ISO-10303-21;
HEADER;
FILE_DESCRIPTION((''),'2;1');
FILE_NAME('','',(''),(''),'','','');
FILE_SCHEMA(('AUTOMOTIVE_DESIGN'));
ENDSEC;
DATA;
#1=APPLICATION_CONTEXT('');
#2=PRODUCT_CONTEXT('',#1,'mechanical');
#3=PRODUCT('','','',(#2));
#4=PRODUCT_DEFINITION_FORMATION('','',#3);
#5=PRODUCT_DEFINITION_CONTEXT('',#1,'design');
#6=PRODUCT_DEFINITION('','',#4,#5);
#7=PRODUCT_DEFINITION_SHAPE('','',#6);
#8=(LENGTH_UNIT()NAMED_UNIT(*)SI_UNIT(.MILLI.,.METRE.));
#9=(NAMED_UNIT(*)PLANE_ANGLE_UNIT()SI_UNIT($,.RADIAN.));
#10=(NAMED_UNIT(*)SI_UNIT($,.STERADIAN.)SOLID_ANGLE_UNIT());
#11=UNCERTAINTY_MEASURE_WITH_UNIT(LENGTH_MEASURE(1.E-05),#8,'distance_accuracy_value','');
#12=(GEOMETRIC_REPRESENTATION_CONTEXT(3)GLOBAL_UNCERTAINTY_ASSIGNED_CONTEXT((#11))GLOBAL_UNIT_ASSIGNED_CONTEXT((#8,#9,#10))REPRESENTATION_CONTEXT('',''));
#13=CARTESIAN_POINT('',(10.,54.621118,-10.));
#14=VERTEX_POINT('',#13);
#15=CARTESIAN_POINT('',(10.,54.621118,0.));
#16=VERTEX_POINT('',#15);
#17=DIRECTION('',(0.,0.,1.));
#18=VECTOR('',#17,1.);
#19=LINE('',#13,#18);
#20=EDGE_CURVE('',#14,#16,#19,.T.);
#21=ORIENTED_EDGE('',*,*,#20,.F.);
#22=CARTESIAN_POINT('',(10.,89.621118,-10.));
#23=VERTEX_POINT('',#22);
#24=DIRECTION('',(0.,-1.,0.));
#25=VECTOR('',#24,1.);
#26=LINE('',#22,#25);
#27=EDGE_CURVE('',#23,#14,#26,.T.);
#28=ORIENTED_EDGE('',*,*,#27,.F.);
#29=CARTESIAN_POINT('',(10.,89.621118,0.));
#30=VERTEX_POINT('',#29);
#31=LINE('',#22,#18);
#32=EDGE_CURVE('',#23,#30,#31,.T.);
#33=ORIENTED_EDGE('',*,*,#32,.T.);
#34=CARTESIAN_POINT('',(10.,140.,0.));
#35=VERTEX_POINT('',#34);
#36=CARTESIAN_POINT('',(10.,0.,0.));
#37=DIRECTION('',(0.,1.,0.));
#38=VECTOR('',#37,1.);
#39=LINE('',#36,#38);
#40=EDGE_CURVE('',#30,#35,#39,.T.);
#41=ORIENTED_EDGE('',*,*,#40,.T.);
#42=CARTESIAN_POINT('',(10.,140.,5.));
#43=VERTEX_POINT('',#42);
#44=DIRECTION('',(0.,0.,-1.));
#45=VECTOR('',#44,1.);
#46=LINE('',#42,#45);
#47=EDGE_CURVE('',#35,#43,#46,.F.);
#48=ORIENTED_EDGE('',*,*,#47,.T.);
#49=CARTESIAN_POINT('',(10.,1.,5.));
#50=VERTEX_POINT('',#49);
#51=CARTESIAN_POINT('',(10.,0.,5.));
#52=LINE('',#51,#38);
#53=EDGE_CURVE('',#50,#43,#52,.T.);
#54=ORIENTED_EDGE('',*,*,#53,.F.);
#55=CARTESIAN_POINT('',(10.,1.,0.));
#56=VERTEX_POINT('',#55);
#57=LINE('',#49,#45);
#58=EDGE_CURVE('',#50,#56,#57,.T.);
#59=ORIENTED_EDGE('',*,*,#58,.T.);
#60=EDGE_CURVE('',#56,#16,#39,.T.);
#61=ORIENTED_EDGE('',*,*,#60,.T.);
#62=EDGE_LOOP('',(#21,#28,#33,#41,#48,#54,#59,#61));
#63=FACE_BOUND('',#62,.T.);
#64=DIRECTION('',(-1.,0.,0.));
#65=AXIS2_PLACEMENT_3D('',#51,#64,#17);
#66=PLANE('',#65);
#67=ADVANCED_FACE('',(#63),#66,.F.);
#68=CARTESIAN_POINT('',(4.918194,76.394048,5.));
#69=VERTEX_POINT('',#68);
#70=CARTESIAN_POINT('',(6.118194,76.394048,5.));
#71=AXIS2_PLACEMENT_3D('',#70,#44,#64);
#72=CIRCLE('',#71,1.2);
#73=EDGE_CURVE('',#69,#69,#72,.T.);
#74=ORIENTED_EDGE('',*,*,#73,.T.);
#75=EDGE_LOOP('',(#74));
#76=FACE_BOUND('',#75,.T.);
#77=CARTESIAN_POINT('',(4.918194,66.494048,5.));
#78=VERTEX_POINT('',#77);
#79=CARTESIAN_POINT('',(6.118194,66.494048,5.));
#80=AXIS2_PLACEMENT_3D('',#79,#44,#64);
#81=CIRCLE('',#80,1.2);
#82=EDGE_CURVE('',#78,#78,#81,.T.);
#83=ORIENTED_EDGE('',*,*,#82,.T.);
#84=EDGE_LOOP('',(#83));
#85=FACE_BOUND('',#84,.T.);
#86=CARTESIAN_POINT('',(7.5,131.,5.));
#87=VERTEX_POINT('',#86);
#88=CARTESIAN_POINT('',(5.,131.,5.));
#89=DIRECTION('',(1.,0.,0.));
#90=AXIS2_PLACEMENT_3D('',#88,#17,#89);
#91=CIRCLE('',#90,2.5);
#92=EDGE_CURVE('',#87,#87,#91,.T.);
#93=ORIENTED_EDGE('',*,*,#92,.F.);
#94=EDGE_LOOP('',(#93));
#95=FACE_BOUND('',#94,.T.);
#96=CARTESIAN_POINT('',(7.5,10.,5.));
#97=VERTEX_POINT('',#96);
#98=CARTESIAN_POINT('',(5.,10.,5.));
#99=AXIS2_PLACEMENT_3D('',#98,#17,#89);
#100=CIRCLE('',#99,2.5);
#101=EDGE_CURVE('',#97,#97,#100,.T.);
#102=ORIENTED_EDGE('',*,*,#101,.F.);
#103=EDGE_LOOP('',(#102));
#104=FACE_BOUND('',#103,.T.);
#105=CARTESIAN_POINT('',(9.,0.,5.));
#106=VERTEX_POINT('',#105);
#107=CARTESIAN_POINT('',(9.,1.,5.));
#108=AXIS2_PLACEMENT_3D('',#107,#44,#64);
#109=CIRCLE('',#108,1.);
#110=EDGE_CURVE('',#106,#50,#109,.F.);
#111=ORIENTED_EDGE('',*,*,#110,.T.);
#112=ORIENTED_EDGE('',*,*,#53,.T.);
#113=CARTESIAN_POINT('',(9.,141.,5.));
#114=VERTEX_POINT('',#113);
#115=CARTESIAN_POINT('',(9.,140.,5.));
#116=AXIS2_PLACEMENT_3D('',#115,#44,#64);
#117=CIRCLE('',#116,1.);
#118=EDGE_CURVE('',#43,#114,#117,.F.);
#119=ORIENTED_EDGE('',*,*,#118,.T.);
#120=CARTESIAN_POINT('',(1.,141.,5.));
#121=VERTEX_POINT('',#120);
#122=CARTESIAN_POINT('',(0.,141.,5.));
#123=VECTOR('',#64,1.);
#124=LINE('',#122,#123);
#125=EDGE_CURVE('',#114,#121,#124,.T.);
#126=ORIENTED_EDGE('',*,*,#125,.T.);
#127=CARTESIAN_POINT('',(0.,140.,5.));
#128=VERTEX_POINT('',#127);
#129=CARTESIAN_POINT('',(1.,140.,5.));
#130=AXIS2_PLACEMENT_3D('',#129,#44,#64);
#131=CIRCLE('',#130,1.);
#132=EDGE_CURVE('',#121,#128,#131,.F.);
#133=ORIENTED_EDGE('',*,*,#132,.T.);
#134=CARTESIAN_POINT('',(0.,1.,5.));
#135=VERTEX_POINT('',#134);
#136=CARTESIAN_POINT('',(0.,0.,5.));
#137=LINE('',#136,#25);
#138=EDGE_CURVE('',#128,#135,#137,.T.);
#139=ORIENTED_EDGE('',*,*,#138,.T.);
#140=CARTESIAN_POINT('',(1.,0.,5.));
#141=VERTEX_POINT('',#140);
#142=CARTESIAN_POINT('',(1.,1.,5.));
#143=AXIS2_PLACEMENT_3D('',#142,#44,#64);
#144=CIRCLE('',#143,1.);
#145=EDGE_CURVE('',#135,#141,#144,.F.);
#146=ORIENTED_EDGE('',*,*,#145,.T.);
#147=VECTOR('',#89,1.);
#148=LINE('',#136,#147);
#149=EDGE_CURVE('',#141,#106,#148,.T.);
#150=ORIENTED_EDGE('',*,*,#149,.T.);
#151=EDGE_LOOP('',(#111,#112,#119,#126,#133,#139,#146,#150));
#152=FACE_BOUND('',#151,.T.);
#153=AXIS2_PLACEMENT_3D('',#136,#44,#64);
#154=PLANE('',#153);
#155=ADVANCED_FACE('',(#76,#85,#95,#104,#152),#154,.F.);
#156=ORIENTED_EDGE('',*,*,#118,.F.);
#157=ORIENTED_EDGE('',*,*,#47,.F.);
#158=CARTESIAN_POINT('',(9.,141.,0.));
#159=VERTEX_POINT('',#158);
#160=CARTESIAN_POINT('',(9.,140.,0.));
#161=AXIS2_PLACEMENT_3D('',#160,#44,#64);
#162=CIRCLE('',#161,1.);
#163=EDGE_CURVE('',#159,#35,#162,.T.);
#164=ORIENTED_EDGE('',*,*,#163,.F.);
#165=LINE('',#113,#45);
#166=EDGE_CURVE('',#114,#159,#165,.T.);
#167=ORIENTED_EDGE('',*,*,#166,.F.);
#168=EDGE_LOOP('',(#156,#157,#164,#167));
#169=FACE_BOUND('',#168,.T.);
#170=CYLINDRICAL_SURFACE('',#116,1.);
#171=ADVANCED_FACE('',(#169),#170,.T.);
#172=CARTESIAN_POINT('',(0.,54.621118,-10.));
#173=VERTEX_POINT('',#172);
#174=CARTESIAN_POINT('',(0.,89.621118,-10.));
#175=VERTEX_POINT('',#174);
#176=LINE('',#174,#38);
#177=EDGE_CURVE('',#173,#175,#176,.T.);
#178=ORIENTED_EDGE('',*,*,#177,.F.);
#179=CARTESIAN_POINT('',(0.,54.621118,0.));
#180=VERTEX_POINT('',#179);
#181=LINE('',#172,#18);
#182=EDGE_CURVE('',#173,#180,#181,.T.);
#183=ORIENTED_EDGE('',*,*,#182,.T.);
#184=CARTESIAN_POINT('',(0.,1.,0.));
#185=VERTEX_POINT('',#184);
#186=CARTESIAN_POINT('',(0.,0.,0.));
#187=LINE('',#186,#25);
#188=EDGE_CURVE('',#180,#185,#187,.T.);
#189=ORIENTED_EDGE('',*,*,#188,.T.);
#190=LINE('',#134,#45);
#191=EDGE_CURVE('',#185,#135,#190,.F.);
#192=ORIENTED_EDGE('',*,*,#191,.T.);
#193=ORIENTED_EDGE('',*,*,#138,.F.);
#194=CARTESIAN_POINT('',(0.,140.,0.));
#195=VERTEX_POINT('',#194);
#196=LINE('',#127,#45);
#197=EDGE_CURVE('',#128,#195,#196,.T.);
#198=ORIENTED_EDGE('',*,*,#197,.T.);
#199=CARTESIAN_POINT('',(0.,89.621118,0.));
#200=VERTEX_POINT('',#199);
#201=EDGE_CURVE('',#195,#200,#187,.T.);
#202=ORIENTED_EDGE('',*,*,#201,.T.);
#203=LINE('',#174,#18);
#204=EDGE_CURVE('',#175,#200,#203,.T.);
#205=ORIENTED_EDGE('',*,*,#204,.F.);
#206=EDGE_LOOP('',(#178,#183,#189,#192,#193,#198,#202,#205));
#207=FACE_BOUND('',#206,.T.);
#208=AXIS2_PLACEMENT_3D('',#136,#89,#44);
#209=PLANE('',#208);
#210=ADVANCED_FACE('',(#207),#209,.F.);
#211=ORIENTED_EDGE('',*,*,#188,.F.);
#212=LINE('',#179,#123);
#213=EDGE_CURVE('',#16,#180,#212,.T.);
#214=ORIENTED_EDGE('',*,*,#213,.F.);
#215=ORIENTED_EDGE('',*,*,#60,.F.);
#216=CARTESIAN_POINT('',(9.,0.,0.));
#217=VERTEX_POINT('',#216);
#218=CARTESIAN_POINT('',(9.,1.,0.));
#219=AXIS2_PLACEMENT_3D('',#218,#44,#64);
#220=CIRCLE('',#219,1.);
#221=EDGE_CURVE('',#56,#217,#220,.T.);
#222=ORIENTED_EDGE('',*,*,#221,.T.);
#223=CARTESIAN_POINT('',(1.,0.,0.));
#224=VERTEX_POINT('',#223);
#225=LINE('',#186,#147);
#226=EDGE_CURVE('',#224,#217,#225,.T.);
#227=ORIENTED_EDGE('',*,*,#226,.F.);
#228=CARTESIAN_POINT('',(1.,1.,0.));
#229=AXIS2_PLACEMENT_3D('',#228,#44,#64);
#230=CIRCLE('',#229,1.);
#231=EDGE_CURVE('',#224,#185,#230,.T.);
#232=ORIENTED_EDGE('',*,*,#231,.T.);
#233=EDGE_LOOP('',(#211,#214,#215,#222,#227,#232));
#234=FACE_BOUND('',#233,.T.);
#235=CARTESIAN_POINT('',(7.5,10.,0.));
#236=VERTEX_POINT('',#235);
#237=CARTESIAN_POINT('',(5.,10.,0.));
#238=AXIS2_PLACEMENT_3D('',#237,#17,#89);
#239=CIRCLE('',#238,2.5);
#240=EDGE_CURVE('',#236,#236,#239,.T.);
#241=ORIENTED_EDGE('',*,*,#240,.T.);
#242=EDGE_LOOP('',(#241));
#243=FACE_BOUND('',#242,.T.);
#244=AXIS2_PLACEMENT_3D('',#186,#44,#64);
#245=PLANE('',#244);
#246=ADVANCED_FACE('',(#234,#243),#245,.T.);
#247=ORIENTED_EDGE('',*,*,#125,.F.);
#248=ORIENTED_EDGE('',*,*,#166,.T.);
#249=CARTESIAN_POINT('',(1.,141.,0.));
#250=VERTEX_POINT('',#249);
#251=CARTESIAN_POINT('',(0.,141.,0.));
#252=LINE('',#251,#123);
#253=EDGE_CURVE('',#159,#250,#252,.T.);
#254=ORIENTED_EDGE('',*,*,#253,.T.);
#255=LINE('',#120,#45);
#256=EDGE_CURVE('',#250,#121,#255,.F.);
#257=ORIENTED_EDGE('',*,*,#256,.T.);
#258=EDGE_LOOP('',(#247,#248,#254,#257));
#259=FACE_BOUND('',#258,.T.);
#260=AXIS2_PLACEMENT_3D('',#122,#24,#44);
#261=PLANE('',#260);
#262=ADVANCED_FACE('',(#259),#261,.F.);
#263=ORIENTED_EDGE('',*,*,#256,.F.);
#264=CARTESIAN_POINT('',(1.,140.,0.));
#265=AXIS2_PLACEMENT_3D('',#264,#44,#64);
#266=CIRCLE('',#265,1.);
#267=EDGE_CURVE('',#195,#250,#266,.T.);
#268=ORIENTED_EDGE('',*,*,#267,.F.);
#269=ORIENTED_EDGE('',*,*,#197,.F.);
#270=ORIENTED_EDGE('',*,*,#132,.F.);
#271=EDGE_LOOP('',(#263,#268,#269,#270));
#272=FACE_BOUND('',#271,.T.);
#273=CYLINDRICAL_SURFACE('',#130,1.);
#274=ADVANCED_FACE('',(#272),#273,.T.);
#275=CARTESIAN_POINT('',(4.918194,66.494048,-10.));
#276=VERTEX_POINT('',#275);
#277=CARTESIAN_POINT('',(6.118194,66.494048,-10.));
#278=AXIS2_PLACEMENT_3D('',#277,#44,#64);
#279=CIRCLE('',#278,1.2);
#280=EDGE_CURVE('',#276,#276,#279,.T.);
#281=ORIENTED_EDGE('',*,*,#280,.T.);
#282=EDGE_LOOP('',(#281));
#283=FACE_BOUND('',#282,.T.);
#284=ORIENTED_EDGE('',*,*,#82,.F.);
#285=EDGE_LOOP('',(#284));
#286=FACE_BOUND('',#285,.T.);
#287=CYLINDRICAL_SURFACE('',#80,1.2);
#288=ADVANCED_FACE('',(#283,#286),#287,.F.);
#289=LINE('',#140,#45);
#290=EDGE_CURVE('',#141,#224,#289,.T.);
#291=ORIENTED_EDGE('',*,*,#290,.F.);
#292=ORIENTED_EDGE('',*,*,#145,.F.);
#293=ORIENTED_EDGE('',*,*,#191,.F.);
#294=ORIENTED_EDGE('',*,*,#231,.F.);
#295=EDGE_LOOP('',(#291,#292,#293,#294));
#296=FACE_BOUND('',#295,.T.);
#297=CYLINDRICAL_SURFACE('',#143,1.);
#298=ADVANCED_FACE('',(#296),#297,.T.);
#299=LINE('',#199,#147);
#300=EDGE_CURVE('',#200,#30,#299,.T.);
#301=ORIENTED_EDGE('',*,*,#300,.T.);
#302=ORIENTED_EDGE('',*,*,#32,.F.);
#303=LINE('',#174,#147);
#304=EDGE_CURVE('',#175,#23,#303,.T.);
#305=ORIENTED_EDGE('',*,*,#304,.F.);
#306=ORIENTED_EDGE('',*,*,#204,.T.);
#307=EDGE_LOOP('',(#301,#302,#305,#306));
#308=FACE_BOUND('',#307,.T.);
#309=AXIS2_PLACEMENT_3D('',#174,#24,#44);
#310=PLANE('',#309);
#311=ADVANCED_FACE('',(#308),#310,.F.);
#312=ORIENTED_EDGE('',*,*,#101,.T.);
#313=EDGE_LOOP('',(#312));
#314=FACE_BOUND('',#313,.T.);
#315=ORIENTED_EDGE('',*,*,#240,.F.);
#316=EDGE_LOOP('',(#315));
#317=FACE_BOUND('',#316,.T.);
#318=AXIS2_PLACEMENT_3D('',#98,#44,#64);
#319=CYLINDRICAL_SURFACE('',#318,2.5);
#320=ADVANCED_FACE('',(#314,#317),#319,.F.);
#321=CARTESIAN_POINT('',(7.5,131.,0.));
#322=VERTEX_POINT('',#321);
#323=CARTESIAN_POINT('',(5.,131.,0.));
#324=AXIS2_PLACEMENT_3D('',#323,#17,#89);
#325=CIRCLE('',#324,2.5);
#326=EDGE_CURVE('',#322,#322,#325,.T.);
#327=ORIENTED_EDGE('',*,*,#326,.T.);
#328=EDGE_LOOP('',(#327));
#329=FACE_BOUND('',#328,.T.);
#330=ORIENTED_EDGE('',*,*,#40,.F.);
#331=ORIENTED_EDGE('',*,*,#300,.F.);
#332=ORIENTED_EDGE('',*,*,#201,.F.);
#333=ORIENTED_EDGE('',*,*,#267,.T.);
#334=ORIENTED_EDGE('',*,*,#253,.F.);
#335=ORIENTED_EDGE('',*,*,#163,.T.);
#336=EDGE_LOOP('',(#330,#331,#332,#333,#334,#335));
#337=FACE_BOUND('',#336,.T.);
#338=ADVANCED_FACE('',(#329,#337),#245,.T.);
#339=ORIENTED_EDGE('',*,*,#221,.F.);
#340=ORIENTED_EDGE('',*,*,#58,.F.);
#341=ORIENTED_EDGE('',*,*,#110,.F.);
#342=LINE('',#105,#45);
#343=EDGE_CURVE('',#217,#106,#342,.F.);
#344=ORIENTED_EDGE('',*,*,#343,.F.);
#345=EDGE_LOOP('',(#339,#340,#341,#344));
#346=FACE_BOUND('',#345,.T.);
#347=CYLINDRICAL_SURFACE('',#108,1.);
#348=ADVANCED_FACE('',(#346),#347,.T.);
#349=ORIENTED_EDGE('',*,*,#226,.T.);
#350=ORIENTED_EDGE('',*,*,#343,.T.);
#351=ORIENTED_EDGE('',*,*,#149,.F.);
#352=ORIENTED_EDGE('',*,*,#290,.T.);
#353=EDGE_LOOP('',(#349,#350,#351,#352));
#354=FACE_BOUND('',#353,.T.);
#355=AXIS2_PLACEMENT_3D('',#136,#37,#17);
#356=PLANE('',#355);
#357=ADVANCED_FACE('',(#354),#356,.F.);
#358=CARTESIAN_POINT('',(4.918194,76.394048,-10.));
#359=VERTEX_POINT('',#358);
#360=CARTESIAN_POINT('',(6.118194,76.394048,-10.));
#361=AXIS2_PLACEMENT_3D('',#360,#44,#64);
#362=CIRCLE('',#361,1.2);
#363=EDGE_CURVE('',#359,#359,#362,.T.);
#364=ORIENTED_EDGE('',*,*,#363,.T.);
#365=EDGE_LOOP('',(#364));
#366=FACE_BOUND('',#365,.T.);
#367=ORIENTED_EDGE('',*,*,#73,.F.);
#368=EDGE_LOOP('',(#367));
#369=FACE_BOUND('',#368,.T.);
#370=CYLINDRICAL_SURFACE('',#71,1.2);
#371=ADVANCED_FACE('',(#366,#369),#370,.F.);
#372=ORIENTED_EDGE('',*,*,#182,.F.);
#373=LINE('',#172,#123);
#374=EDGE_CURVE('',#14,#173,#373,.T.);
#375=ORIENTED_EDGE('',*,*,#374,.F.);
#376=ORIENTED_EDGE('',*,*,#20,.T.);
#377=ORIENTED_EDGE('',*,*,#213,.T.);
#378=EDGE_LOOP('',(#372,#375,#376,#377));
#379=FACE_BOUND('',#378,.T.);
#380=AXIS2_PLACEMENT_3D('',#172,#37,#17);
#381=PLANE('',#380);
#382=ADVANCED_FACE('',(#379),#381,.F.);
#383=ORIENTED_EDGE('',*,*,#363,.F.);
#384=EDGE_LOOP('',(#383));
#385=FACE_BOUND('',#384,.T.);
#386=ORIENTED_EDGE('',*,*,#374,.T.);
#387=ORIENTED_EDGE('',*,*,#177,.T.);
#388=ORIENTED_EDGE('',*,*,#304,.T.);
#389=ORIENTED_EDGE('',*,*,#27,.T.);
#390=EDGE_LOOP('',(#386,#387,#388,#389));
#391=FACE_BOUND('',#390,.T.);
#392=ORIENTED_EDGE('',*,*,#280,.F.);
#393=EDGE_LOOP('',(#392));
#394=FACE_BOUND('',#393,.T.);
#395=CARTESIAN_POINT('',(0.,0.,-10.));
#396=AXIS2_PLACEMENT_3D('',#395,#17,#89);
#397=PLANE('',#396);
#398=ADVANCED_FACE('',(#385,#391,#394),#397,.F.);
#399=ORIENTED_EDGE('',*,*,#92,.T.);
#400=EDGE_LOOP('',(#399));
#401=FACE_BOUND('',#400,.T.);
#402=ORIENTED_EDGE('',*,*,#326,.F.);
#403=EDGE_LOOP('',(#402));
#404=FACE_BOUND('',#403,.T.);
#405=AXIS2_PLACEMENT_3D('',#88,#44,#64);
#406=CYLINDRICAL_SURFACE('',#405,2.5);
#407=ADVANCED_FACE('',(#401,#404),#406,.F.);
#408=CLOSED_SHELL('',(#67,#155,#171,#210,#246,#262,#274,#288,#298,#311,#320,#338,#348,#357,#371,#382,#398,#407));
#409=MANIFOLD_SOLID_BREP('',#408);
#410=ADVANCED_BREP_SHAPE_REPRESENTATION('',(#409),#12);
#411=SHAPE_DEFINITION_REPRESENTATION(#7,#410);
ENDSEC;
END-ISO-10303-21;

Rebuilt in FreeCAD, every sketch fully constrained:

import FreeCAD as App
import Part
import Sketcher
Q = App.Units.Quantity


def edges_at(feature, points):
    """Names of the edges that pass closest to the given points."""
    edges = feature.Shape.Edges
    near = lambda p: min(range(len(edges)), key=lambda i: edges[i].distToShape(Part.Vertex(*p))[0])
    return sorted({f"Edge{near(p) + 1}" for p in points})


def add_polygon(sketch, points):
    """Adds a closed chain of lines whose ends are joined by coincident constraints."""
    first, n = sketch.GeometryCount, len(points)
    for a, b in zip(points, points[1:] + points[:1]):
        sketch.addGeometry(Part.LineSegment(App.Vector(*a, 0), App.Vector(*b, 0)), False)
    for i in range(n):
        sketch.addConstraint(Sketcher.Constraint("Coincident", first + i, 2, first + (i + 1) % n, 1))

doc = App.newDocument("Part")
body = doc.addObject("PartDesign::Body", "Body")

# Sketch on XY plane
sketch1 = doc.addObject("Sketcher::SketchObject", "Sketch")
body.addObject(sketch1)
sketch1.AttachmentSupport = (doc.XY_Plane, [""])
sketch1.MapMode = "FlatFace"
add_polygon(sketch1, [(0, 141), (0, 0), (10, 0), (10, 141)])  # lines 0-3
sketch1.addGeometry(Part.Circle(App.Vector(5, 10, 0), App.Vector(0, 0, 1), 2.5), False)  # 4
sketch1.addGeometry(Part.Circle(App.Vector(5, 131, 0), App.Vector(0, 0, 1), 2.5), False)  # 5
sketch1.addConstraint([
    Sketcher.Constraint("Vertical", 0),
    Sketcher.Constraint("Horizontal", 1),
    Sketcher.Constraint("Vertical", 2),
    Sketcher.Constraint("Horizontal", 3),
    Sketcher.Constraint("Coincident", 0, 2, -1, 1),
    Sketcher.Constraint("Equal", 4, 5),
    Sketcher.Constraint("Vertical", 4, 3, 5, 3),
    Sketcher.Constraint("Diameter", 4, Q("5 mm")),
    Sketcher.Constraint("DistanceX", 1, 1, 1, 2, Q("10 mm")),
    Sketcher.Constraint("DistanceY", 0, 2, 0, 1, Q("141 mm")),
    Sketcher.Constraint("DistanceX", -1, 1, 4, 3, Q("5 mm")),
    Sketcher.Constraint("DistanceY", -1, 1, 4, 3, Q("10 mm")),
    Sketcher.Constraint("DistanceY", -1, 1, 5, 3, Q("131 mm")),
])
pad1 = doc.addObject("PartDesign::Pad", "Pad")
body.addObject(pad1)
pad1.Profile = sketch1
pad1.Length = 5

# Sketch on XY plane
sketch2 = doc.addObject("Sketcher::SketchObject", "Sketch001")
body.addObject(sketch2)
sketch2.AttachmentSupport = (doc.XY_Plane, [""])
sketch2.MapMode = "FlatFace"
add_polygon(sketch2, [(10, 89.621118), (10, 54.621118), (0, 54.621118), (0, 89.621118)])  # lines 0-3
sketch2.addConstraint([
    Sketcher.Constraint("Vertical", 0),
    Sketcher.Constraint("Horizontal", 1),
    Sketcher.Constraint("Vertical", 2),
    Sketcher.Constraint("Horizontal", 3),
    Sketcher.Constraint("PointOnObject", 1, 2, -2),
    Sketcher.Constraint("DistanceX", 1, 2, 1, 1, Q("10 mm")),
    Sketcher.Constraint("DistanceY", 0, 2, 0, 1, Q("35 mm")),
    Sketcher.Constraint("DistanceY", -1, 1, 0, 2, Q("54.621118 mm")),
])
pad2 = doc.addObject("PartDesign::Pad", "Pad001")
body.addObject(pad2)
pad2.Profile = sketch2
pad2.Length = 10
pad2.Reversed = True

# Sketch on XY plane
sketch3 = doc.addObject("Sketcher::SketchObject", "Sketch002")
body.addObject(sketch3)
sketch3.AttachmentSupport = (doc.XY_Plane, [""])
sketch3.MapMode = "FlatFace"
sketch3.AttachmentOffset = App.Placement(App.Vector(0, 0, -10), App.Rotation())
sketch3.addGeometry([
    Part.Circle(App.Vector(6.118194, 66.494048, 0), App.Vector(0, 0, 1), 1.2),
    Part.Circle(App.Vector(6.118194, 76.394048, 0), App.Vector(0, 0, 1), 1.2),
], False)
sketch3.addConstraint([
    Sketcher.Constraint("Equal", 0, 1),
    Sketcher.Constraint("Vertical", 0, 3, 1, 3),
    Sketcher.Constraint("Diameter", 0, Q("2.4 mm")),
    Sketcher.Constraint("DistanceY", 0, 3, 1, 3, Q("9.9 mm")),
    Sketcher.Constraint("DistanceY", -1, 1, 0, 3, Q("66.494048 mm")),
    Sketcher.Constraint("DistanceX", -1, 1, 0, 3, Q("6.118194 mm")),
])
pocket1 = doc.addObject("PartDesign::Pocket", "Pocket")
body.addObject(pocket1)
pocket1.Profile = sketch3
pocket1.Length = 15
pocket1.Reversed = True
doc.recompute()

fillet = doc.addObject("PartDesign::Fillet", "Fillet")
body.addObject(fillet)
fillet.Base = (pocket1, edges_at(pocket1, [
    (0, 141, 2.5),
    (10, 141, 2.5),
    (10, 0, 2.5),
    (0, 0, 2.5),
]))
fillet.Radius = 1

doc.recompute()
